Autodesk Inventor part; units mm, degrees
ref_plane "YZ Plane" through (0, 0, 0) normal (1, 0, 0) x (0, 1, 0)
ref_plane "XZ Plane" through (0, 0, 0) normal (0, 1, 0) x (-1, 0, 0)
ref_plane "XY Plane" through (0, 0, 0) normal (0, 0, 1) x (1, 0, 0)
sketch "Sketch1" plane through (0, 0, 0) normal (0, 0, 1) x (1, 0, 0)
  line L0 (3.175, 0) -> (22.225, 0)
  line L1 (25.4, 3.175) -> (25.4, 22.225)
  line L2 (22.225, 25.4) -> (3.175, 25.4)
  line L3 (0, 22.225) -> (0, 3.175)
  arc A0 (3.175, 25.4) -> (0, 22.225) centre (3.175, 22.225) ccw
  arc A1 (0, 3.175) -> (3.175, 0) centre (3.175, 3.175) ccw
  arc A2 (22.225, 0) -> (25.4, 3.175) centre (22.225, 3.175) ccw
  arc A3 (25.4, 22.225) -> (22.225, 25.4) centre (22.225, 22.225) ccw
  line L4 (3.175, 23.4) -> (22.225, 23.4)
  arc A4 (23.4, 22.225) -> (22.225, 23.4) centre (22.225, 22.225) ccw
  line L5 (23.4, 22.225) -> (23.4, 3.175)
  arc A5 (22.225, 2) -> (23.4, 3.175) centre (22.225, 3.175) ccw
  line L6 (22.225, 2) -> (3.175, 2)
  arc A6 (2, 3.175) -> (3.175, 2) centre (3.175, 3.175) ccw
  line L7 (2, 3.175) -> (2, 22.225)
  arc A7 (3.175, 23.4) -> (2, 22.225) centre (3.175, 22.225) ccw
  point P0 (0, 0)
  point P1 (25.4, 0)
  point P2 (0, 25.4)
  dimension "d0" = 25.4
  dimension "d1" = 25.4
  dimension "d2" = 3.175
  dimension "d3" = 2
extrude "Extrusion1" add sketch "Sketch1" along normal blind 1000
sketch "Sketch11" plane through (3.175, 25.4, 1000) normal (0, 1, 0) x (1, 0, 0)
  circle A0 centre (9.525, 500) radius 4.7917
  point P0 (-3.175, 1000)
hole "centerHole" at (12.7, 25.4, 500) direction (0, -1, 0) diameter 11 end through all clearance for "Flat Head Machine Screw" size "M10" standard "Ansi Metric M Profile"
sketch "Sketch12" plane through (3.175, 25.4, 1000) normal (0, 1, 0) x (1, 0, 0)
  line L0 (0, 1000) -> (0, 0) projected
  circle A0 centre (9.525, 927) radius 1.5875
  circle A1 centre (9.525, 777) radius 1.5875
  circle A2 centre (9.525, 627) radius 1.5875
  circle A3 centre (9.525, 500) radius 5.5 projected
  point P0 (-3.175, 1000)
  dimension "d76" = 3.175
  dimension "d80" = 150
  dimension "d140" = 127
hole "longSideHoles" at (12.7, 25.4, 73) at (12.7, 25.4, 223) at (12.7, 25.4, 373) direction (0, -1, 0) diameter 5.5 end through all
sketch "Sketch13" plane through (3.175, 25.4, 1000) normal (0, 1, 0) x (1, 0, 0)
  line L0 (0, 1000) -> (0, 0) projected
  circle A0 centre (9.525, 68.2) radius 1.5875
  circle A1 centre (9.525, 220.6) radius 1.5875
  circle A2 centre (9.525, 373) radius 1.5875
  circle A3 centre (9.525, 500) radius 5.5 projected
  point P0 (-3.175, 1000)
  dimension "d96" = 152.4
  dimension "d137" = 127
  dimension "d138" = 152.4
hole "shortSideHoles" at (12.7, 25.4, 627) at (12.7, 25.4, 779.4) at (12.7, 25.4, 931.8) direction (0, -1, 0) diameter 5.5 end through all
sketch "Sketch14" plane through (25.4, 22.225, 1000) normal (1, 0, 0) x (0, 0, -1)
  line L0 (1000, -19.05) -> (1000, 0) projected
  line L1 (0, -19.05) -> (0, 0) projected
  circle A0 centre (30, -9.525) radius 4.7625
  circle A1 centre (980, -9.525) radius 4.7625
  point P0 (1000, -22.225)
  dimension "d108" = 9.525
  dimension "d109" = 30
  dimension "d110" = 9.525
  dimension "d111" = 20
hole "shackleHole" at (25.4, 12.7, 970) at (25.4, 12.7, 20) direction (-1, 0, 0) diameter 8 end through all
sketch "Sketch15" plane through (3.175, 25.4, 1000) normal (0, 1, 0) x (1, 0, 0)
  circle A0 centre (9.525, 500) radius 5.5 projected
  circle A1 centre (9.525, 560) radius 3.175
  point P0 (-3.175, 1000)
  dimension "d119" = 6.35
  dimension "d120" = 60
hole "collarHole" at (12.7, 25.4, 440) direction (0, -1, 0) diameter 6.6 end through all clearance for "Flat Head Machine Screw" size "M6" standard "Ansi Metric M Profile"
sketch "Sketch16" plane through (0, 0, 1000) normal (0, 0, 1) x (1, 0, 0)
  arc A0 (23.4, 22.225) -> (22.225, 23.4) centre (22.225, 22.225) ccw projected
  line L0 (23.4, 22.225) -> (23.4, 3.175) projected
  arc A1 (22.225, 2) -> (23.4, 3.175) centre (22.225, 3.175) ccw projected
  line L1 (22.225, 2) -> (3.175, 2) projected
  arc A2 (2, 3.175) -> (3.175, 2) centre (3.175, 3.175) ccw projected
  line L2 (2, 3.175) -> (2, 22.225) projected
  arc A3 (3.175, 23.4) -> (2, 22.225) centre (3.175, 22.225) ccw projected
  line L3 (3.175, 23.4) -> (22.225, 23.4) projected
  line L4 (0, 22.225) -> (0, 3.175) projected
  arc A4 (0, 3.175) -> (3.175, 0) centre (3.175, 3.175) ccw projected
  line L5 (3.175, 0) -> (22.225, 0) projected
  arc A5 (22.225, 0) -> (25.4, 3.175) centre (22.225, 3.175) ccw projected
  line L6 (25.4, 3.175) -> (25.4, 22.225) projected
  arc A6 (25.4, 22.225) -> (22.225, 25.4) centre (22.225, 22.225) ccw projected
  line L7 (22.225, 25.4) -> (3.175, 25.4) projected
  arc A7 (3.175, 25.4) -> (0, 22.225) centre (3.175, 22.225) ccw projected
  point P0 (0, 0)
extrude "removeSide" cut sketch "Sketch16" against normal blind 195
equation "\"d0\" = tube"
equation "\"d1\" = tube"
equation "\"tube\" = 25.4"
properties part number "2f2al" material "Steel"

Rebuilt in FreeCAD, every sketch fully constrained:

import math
import FreeCAD as App
import Part
import Sketcher
from FreeCAD import Vector

doc = App.newDocument("Part")
params = doc.addObject("Spreadsheet::Sheet", "Params")
for row, (alias, value) in enumerate([
    ("pad1_length", "1000 mm"),
    ("sketch2_diameter", "11 mm"),
    ("hole_diameter", "11 mm"),
    ("sketch3_diameter", "5.5 mm"),
    ("hole2_diameter", "5.5 mm"),
    ("sketch4_diameter", "5.5 mm"),
    ("hole3_diameter", "5.5 mm"),
    ("sketch5_diameter", "8 mm"),
    ("hole4_diameter", "8 mm"),
    ("sketch6_diameter", "6.6 mm"),
    ("hole5_diameter", "6.6 mm"),
    ("sketch7_width", "19.05 mm"),
    ("pocket1_length", "195 mm"),
], start=1):
    params.set(f"A{row}", alias)
    params.set(f"B{row}", "=" + value)
    params.setAlias(f"B{row}", alias)

body = doc.addObject("PartDesign::Body", "Body")

sketch1 = body.newObject("Sketcher::SketchObject", "Sketch")
sketch1.AttachmentSupport = (doc.getObject("XY_Plane"), [""])
sketch1.MapMode = "FlatFace"
sketch1.addGeometry([
    Part.ArcOfCircle(Part.Circle(Vector(3.2, 3.2, 0), Vector(0, 0, 1), 3.2), math.radians(180), math.radians(270)),
    Part.LineSegment(Vector(3.2, 0, 0), Vector(22.2, 0, 0)),
    Part.ArcOfCircle(Part.Circle(Vector(22.2, 3.2, 0), Vector(0, 0, 1), 3.2), math.radians(-90), math.radians(0)),
    Part.LineSegment(Vector(25.4, 3.2, 0), Vector(25.4, 22.2, 0)),
    Part.ArcOfCircle(Part.Circle(Vector(22.2, 22.2, 0), Vector(0, 0, 1), 3.2), math.radians(0), math.radians(90)),
    Part.LineSegment(Vector(22.2, 25.4, 0), Vector(3.2, 25.4, 0)),
    Part.ArcOfCircle(Part.Circle(Vector(3.2, 22.2, 0), Vector(0, 0, 1), 3.2), math.radians(90), math.radians(180)),
    Part.LineSegment(Vector(0, 22.2, 0), Vector(0, 3.2, 0)),
    Part.ArcOfCircle(Part.Circle(Vector(3.2, 22.2, 0), Vector(0, 0, 1), 1.2), math.radians(90), math.radians(180)),
    Part.LineSegment(Vector(3.2, 23.4, 0), Vector(22.2, 23.4, 0)),
    Part.ArcOfCircle(Part.Circle(Vector(22.2, 22.2, 0), Vector(0, 0, 1), 1.2), math.radians(0), math.radians(90)),
    Part.LineSegment(Vector(23.4, 22.2, 0), Vector(23.4, 3.2, 0)),
    Part.ArcOfCircle(Part.Circle(Vector(22.2, 3.2, 0), Vector(0, 0, 1), 1.2), math.radians(-90), math.radians(0)),
    Part.LineSegment(Vector(22.2, 2, 0), Vector(3.2, 2, 0)),
    Part.ArcOfCircle(Part.Circle(Vector(3.2, 3.2, 0), Vector(0, 0, 1), 1.2), math.radians(180), math.radians(270)),
    Part.LineSegment(Vector(2, 3.2, 0), Vector(2, 22.2, 0)),
], False)
sketch1.addConstraint([
    Sketcher.Constraint("Tangent", 0, 2, 1, 1),
    Sketcher.Constraint("Tangent", 1, 2, 2, 1),
    Sketcher.Constraint("Tangent", 2, 2, 3, 1),
    Sketcher.Constraint("Tangent", 3, 2, 4, 1),
    Sketcher.Constraint("Tangent", 4, 2, 5, 1),
    Sketcher.Constraint("Tangent", 5, 2, 6, 1),
    Sketcher.Constraint("Tangent", 6, 2, 7, 1),
    Sketcher.Constraint("Tangent", 7, 2, 0, 1),
    Sketcher.Constraint("Tangent", 8, 1, 9, 1),
    Sketcher.Constraint("Tangent", 9, 2, 10, 2),
    Sketcher.Constraint("Tangent", 10, 1, 11, 1),
    Sketcher.Constraint("Tangent", 11, 2, 12, 2),
    Sketcher.Constraint("Tangent", 12, 1, 13, 1),
    Sketcher.Constraint("Tangent", 13, 2, 14, 2),
    Sketcher.Constraint("Tangent", 14, 1, 15, 1),
    Sketcher.Constraint("Tangent", 15, 2, 8, 2),
    Sketcher.Constraint("Horizontal", 1),
    Sketcher.Constraint("Vertical", 3),
    Sketcher.Constraint("Horizontal", 5),
    Sketcher.Constraint("Vertical", 7),
    Sketcher.Constraint("Horizontal", 9),
    Sketcher.Constraint("Vertical", 11),
    Sketcher.Constraint("Horizontal", 13),
    Sketcher.Constraint("Vertical", 15),
    Sketcher.Constraint("Coincident", 8, 3, 6, 3),
    Sketcher.Constraint("Coincident", 10, 3, 4, 3),
    Sketcher.Constraint("Coincident", 12, 3, 2, 3),
    Sketcher.Constraint("Equal", 0, 2),
    Sketcher.Constraint("Equal", 2, 4),
    Sketcher.Constraint("Equal", 4, 6),
    Sketcher.Constraint("Equal", 12, 14),
    Sketcher.Constraint("PointOnObject", 0, 2, -1),
    Sketcher.Constraint("PointOnObject", 6, 2, -2),
    Sketcher.Constraint("Equal", 13, 3),
    Sketcher.Constraint("DistanceY", -1, 1, 12, 1, 2.0),
    Sketcher.Constraint("Radius", 0, 3.175),
    Sketcher.Constraint("DistanceX", -1, 1, 2, 2, 25.4),
])
pad1 = body.newObject("PartDesign::Pad", "Pad")
pad1.Profile = sketch1
pad1.setExpression("Length", "Params.pad1_length")

sketch2 = body.newObject("Sketcher::SketchObject", "Sketch001")
sketch2.AttachmentSupport = (doc.getObject("XZ_Plane"), [""])
sketch2.MapMode = "FlatFace"
sketch2.AttachmentOffset = App.Placement(Vector(0, 0, -25.4), App.Rotation())
sketch2.addGeometry(Part.Circle(Vector(13, 500, 0), Vector(0, 0, 1), 6), False)
sketch2.addConstraint([
    Sketcher.Constraint("Diameter", 0, 11.0),
    Sketcher.Constraint("DistanceY", -1, 1, 0, 3, 500.0),
    Sketcher.Constraint("DistanceX", -1, 1, 0, 3, 12.7),
])
sketch2.setExpression("Constraints[0]", "Params.sketch2_diameter")
doc.recompute()
hole = body.newObject("PartDesign::Hole", "Hole")
hole.Profile = sketch2
hole.ThreadType = "None"
hole.setExpression("Diameter", "Params.hole_diameter")
hole.DepthType = "ThroughAll"
hole.Reversed = True

sketch3 = body.newObject("Sketcher::SketchObject", "Sketch002")
sketch3.AttachmentSupport = (doc.getObject("XZ_Plane"), [""])
sketch3.MapMode = "FlatFace"
sketch3.AttachmentOffset = App.Placement(Vector(0, 0, -25.4), App.Rotation())
sketch3.addGeometry([
    Part.Circle(Vector(12.7, 73, 0), Vector(0, 0, 1), 2.8),
    Part.Circle(Vector(12.7, 223, 0), Vector(0, 0, 1), 2.8),
    Part.Circle(Vector(12.7, 373, 0), Vector(0, 0, 1), 2.8),
], False)
sketch3.addConstraint([
    Sketcher.Constraint("Equal", 0, 1),
    Sketcher.Constraint("Equal", 1, 2),
    Sketcher.Constraint("Vertical", 0, 3, 1, 3),
    Sketcher.Constraint("Vertical", 1, 3, 2, 3),
    Sketcher.Constraint("Diameter", 0, 5.5),
    Sketcher.Constraint("DistanceY", -1, 1, 0, 3, 73.0),
    Sketcher.Constraint("DistanceY", -1, 1, 1, 3, 223.0),
    Sketcher.Constraint("DistanceY", -1, 1, 2, 3, 373.0),
    Sketcher.Constraint("DistanceX", -1, 1, 0, 3, 12.7),
])
sketch3.setExpression("Constraints[4]", "Params.sketch3_diameter")
doc.recompute()
hole2 = body.newObject("PartDesign::Hole", "Hole001")
hole2.Profile = sketch3
hole2.ThreadType = "None"
hole2.setExpression("Diameter", "Params.hole2_diameter")
hole2.DepthType = "ThroughAll"
hole2.Reversed = True

sketch4 = body.newObject("Sketcher::SketchObject", "Sketch003")
sketch4.AttachmentSupport = (doc.getObject("XZ_Plane"), [""])
sketch4.MapMode = "FlatFace"
sketch4.AttachmentOffset = App.Placement(Vector(0, 0, -25.4), App.Rotation())
sketch4.addGeometry([
    Part.Circle(Vector(12.7, 627, 0), Vector(0, 0, 1), 2.8),
    Part.Circle(Vector(12.7, 779.4, 0), Vector(0, 0, 1), 2.8),
    Part.Circle(Vector(12.7, 931.8, 0), Vector(0, 0, 1), 2.8),
], False)
sketch4.addConstraint([
    Sketcher.Constraint("Equal", 0, 1),
    Sketcher.Constraint("Equal", 1, 2),
    Sketcher.Constraint("Vertical", 0, 3, 1, 3),
    Sketcher.Constraint("Vertical", 1, 3, 2, 3),
    Sketcher.Constraint("Diameter", 0, 5.5),
    Sketcher.Constraint("DistanceY", -1, 1, 0, 3, 627.0),
    Sketcher.Constraint("DistanceX", -1, 1, 0, 3, 12.7),
    Sketcher.Constraint("DistanceY", -1, 1, 1, 3, 779.4),
    Sketcher.Constraint("DistanceY", -1, 1, 2, 3, 931.8),
])
sketch4.setExpression("Constraints[4]", "Params.sketch4_diameter")
doc.recompute()
hole3 = body.newObject("PartDesign::Hole", "Hole002")
hole3.Profile = sketch4
hole3.ThreadType = "None"
hole3.setExpression("Diameter", "Params.hole3_diameter")
hole3.DepthType = "ThroughAll"
hole3.Reversed = True

sketch5 = body.newObject("Sketcher::SketchObject", "Sketch004")
sketch5.AttachmentSupport = (doc.getObject("YZ_Plane"), [""])
sketch5.MapMode = "FlatFace"
sketch5.AttachmentOffset = App.Placement(Vector(0, 0, 25.4), App.Rotation())
sketch5.addGeometry([
    Part.Circle(Vector(12.7, 970, 0), Vector(0, 0, 1), 4),
    Part.Circle(Vector(12.7, 20, 0), Vector(0, 0, 1), 4),
], False)
sketch5.addConstraint([
    Sketcher.Constraint("Equal", 0, 1),
    Sketcher.Constraint("Vertical", 0, 3, 1, 3),
    Sketcher.Constraint("Diameter", 0, 8.0),
    Sketcher.Constraint("DistanceY", -1, 1, 0, 3, 970.0),
    Sketcher.Constraint("DistanceY", -1, 1, 1, 3, 20.0),
    Sketcher.Constraint("DistanceX", -1, 1, 0, 3, 12.7),
])
sketch5.setExpression("Constraints[2]", "Params.sketch5_diameter")
doc.recompute()
hole4 = body.newObject("PartDesign::Hole", "Hole003")
hole4.Profile = sketch5
hole4.ThreadType = "None"
hole4.setExpression("Diameter", "Params.hole4_diameter")
hole4.DepthType = "ThroughAll"

sketch6 = body.newObject("Sketcher::SketchObject", "Sketch005")
sketch6.AttachmentSupport = (doc.getObject("XZ_Plane"), [""])
sketch6.MapMode = "FlatFace"
sketch6.AttachmentOffset = App.Placement(Vector(0, 0, -25.4), App.Rotation())
sketch6.addGeometry(Part.Circle(Vector(12.7, 440, 0), Vector(0, 0, 1), 3.3), False)
sketch6.addConstraint([
    Sketcher.Constraint("Diameter", 0, 6.6),
    Sketcher.Constraint("DistanceY", -1, 1, 0, 3, 440.0),
    Sketcher.Constraint("DistanceX", -1, 1, 0, 3, 12.7),
])
sketch6.setExpression("Constraints[0]", "Params.sketch6_diameter")
doc.recompute()
hole5 = body.newObject("PartDesign::Hole", "Hole004")
hole5.Profile = sketch6
hole5.ThreadType = "None"
hole5.setExpression("Diameter", "Params.hole5_diameter")
hole5.DepthType = "ThroughAll"
hole5.Reversed = True

sketch7 = body.newObject("Sketcher::SketchObject", "Sketch006")
sketch7.AttachmentSupport = (doc.getObject("XY_Plane"), [""])
sketch7.MapMode = "FlatFace"
sketch7.AttachmentOffset = App.Placement(Vector(0, 0, 1000), App.Rotation())
sketch7.addGeometry([
    Part.ArcOfCircle(Part.Circle(Vector(3.2, 22.2, 0), Vector(0, 0, 1), 3.2), math.radians(90), math.radians(180)),
    Part.LineSegment(Vector(0, 22.2, 0), Vector(0, 3.2, 0)),
    Part.ArcOfCircle(Part.Circle(Vector(3.2, 3.2, 0), Vector(0, 0, 1), 3.2), math.radians(180), math.radians(270)),
    Part.LineSegment(Vector(3.2, 0, 0), Vector(22.2, 0, 0)),
    Part.ArcOfCircle(Part.Circle(Vector(22.2, 3.2, 0), Vector(0, 0, 1), 3.2), math.radians(-90), math.radians(0)),
    Part.LineSegment(Vector(25.4, 3.2, 0), Vector(25.4, 22.2, 0)),
    Part.ArcOfCircle(Part.Circle(Vector(22.2, 22.2, 0), Vector(0, 0, 1), 3.2), math.radians(0), math.radians(90)),
    Part.LineSegment(Vector(22.2, 25.4, 0), Vector(3.2, 25.4, 0)),
    Part.ArcOfCircle(Part.Circle(Vector(22.2, 22.2, 0), Vector(0, 0, 1), 1.2), math.radians(0), math.radians(90)),
    Part.LineSegment(Vector(23.4, 22.2, 0), Vector(23.4, 3.2, 0)),
    Part.ArcOfCircle(Part.Circle(Vector(22.2, 3.2, 0), Vector(0, 0, 1), 1.2), math.radians(-90), math.radians(0)),
    Part.LineSegment(Vector(22.2, 2, 0), Vector(3.2, 2, 0)),
    Part.ArcOfCircle(Part.Circle(Vector(3.2, 3.2, 0), Vector(0, 0, 1), 1.2), math.radians(180), math.radians(270)),
    Part.LineSegment(Vector(2, 3.2, 0), Vector(2, 22.2, 0)),
    Part.ArcOfCircle(Part.Circle(Vector(3.2, 22.2, 0), Vector(0, 0, 1), 1.2), math.radians(90), math.radians(180)),
    Part.LineSegment(Vector(3.2, 23.4, 0), Vector(22.2, 23.4, 0)),
], False)
sketch7.addConstraint([
    Sketcher.Constraint("Tangent", 0, 2, 1, 1),
    Sketcher.Constraint("Tangent", 1, 2, 2, 1),
    Sketcher.Constraint("Tangent", 2, 2, 3, 1),
    Sketcher.Constraint("Tangent", 3, 2, 4, 1),
    Sketcher.Constraint("Tangent", 4, 2, 5, 1),
    Sketcher.Constraint("Tangent", 5, 2, 6, 1),
    Sketcher.Constraint("Tangent", 6, 2, 7, 1),
    Sketcher.Constraint("Tangent", 7, 2, 0, 1),
    Sketcher.Constraint("Tangent", 8, 1, 9, 1),
    Sketcher.Constraint("Tangent", 9, 2, 10, 2),
    Sketcher.Constraint("Tangent", 10, 1, 11, 1),
    Sketcher.Constraint("Tangent", 11, 2, 12, 2),
    Sketcher.Constraint("Tangent", 12, 1, 13, 1),
    Sketcher.Constraint("Tangent", 13, 2, 14, 2),
    Sketcher.Constraint("Tangent", 14, 1, 15, 1),
    Sketcher.Constraint("Tangent", 15, 2, 8, 2),
    Sketcher.Constraint("Vertical", 1),
    Sketcher.Constraint("Horizontal", 3),
    Sketcher.Constraint("Vertical", 5),
    Sketcher.Constraint("Horizontal", 7),
    Sketcher.Constraint("Vertical", 9),
    Sketcher.Constraint("Horizontal", 11),
    Sketcher.Constraint("Vertical", 13),
    Sketcher.Constraint("Horizontal", 15),
    Sketcher.Constraint("Coincident", 8, 3, 6, 3),
    Sketcher.Constraint("Coincident", 10, 3, 4, 3),
    Sketcher.Constraint("Coincident", 12, 3, 2, 3),
    Sketcher.Constraint("Equal", 0, 2),
    Sketcher.Constraint("Equal", 2, 4),
    Sketcher.Constraint("Equal", 4, 6),
    Sketcher.Constraint("Equal", 12, 14),
    Sketcher.Constraint("PointOnObject", 0, 2, -2),
    Sketcher.Constraint("PointOnObject", 2, 2, -1),
    Sketcher.Constraint("Equal", 15, 1),
    Sketcher.Constraint("DistanceY", -1, 1, 10, 1, 2.0),
    Sketcher.Constraint("Radius", 0, 3.175),
    Sketcher.Constraint("DistanceX", 3, 1, 3, 2, 19.05),
])
sketch7.setExpression("Constraints[36]", "Params.sketch7_width")
pocket1 = body.newObject("PartDesign::Pocket", "Pocket")
pocket1.Profile = sketch7
pocket1.setExpression("Length", "Params.pocket1_length")

doc.recompute()
